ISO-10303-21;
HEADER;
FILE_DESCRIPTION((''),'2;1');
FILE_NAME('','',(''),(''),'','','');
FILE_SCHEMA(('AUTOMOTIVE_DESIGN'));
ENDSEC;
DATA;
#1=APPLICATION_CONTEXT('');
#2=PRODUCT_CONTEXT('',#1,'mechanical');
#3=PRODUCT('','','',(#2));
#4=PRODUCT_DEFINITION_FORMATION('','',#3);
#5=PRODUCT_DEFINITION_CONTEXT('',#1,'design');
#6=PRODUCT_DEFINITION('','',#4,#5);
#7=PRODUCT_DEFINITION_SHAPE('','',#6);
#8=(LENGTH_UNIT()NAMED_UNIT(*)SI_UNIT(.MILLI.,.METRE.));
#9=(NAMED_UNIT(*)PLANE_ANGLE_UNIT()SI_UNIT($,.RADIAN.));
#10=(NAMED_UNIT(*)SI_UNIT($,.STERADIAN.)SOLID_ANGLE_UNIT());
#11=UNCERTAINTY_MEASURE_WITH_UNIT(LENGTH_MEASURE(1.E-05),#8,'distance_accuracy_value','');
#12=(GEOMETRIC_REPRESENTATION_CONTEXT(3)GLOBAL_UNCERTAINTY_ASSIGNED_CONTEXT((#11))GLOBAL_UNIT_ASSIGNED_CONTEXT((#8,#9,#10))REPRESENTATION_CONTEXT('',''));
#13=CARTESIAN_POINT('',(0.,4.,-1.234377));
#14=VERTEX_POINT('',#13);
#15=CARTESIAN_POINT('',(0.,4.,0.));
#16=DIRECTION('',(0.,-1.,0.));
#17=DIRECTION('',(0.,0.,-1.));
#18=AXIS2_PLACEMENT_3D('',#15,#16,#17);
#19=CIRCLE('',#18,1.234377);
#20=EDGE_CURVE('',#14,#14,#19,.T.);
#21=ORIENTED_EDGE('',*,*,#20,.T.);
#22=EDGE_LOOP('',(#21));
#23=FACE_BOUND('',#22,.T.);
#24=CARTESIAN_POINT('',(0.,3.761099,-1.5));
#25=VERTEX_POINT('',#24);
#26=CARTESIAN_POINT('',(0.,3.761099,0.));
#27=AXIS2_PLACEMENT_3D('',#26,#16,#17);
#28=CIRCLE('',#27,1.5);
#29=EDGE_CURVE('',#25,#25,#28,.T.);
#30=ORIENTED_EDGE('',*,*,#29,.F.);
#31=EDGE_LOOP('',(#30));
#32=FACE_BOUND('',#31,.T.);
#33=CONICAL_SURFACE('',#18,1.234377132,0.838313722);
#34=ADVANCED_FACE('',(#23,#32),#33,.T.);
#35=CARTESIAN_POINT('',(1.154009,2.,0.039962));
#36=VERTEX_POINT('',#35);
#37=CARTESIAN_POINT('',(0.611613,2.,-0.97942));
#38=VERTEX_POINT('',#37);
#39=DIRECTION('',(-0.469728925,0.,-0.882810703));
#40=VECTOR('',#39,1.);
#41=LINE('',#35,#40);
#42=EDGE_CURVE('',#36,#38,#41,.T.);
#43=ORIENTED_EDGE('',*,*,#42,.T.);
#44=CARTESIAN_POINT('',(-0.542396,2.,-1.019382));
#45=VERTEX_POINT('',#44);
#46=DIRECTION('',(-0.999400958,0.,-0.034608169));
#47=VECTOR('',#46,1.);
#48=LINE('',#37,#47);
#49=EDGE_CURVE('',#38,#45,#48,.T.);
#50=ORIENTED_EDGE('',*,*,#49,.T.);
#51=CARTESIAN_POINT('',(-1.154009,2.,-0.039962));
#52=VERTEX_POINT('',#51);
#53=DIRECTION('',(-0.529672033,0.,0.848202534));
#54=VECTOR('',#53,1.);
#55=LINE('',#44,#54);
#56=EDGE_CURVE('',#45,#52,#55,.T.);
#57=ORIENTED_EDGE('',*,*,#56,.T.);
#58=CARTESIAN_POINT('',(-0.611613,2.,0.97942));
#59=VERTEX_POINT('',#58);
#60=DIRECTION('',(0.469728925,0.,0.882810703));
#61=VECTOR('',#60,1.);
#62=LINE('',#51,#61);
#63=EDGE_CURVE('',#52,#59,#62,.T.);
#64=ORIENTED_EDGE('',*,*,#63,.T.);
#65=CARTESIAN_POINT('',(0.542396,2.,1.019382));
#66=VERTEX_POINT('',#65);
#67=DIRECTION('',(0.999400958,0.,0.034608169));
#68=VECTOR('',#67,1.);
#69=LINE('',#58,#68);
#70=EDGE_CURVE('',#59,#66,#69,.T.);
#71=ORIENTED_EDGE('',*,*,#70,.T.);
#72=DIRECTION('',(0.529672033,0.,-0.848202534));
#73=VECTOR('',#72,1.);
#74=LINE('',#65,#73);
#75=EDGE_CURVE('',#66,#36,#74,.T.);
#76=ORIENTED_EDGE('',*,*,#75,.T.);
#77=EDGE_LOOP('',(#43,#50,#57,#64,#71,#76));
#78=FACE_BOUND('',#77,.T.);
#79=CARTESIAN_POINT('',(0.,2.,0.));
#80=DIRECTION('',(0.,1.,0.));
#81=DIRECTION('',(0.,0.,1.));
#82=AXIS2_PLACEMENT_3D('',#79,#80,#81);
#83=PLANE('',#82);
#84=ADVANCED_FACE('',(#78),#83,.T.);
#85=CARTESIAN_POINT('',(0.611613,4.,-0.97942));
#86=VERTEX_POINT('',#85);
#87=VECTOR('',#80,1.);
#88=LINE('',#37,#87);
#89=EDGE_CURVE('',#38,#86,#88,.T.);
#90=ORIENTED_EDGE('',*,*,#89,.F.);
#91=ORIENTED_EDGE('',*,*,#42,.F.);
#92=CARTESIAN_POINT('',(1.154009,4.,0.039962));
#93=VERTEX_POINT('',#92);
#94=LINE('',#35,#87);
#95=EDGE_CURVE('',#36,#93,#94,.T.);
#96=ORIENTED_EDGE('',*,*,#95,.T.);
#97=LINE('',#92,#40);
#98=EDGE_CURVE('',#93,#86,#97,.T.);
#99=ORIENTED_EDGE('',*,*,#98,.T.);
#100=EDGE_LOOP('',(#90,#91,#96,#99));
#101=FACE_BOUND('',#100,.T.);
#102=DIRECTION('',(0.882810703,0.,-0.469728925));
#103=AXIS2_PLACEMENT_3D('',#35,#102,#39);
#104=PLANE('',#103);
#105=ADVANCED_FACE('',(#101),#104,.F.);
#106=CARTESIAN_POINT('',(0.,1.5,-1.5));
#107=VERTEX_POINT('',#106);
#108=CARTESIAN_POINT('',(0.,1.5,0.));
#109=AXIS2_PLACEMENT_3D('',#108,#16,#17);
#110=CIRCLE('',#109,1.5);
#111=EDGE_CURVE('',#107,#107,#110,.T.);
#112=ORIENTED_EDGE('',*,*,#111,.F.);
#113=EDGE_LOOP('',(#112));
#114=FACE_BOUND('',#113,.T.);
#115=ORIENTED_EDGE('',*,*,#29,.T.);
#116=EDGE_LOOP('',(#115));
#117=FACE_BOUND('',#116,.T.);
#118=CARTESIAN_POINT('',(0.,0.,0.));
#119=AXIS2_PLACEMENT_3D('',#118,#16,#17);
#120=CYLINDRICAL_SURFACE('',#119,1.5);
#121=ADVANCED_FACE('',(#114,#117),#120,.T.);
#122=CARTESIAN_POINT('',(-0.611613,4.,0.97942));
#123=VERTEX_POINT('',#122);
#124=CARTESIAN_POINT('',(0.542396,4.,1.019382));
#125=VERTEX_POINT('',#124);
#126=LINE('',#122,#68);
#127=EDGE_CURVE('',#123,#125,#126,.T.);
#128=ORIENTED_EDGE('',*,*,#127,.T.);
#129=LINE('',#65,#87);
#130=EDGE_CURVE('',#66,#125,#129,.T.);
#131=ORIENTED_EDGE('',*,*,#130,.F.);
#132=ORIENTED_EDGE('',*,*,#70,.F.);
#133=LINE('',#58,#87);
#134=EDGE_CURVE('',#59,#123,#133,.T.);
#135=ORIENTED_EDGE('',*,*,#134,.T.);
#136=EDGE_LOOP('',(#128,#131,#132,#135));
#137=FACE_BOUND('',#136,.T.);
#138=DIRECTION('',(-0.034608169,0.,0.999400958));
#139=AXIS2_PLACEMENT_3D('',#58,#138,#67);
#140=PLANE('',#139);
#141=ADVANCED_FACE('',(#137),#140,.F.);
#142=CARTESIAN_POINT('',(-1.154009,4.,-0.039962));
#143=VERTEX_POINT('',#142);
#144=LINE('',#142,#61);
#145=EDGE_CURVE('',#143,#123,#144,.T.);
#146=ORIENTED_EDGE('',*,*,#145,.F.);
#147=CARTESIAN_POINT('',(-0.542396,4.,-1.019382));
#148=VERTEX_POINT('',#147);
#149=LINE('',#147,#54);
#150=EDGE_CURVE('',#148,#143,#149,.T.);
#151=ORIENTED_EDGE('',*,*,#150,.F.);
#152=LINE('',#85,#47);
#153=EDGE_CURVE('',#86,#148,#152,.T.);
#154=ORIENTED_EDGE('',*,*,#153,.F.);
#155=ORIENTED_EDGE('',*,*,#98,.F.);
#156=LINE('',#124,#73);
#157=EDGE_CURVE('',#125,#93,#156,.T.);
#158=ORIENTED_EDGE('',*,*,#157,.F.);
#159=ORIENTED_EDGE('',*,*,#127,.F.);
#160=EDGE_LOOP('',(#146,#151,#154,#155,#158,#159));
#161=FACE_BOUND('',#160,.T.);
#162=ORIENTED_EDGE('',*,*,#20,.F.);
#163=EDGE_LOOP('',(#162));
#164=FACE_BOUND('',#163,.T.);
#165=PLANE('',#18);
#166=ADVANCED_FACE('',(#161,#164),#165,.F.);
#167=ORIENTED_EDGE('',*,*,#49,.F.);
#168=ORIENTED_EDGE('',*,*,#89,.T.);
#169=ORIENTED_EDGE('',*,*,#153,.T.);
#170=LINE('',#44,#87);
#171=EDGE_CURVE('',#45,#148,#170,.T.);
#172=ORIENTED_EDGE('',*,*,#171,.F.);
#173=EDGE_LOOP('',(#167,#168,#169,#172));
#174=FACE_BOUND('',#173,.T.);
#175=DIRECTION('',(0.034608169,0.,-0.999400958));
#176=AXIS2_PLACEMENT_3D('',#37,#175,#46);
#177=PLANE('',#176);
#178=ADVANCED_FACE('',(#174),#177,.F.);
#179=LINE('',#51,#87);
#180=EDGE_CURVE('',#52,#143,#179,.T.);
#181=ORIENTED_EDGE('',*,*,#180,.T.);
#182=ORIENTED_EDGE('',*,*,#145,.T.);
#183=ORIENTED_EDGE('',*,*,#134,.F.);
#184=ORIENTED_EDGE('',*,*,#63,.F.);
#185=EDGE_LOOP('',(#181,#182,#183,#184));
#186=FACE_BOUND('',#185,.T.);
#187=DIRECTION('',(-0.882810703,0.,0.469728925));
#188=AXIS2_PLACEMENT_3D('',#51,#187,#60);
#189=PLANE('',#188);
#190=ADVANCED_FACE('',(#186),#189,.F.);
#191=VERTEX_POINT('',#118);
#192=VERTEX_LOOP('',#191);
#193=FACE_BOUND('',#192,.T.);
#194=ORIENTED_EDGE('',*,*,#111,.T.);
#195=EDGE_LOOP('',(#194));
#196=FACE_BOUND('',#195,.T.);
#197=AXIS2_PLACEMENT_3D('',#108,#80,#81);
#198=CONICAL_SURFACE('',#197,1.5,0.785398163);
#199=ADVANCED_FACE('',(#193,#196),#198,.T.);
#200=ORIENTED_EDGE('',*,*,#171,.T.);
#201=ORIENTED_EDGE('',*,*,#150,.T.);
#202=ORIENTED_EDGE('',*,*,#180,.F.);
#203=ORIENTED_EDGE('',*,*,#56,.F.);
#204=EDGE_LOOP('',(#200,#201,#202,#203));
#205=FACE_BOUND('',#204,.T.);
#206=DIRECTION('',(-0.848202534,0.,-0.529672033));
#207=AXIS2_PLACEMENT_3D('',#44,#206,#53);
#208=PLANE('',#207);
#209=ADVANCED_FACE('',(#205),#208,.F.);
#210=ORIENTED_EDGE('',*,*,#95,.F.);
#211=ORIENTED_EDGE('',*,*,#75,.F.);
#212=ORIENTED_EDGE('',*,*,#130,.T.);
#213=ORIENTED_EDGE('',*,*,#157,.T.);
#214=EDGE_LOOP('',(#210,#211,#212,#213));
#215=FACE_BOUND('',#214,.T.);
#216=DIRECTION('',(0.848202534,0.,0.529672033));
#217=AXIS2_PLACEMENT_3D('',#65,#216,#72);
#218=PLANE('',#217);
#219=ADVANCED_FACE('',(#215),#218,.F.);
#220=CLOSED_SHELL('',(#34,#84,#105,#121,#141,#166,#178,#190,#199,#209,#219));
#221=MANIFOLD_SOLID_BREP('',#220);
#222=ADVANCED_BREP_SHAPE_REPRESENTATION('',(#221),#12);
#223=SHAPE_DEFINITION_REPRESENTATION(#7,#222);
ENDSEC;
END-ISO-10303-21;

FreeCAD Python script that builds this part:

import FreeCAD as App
import Part
import Sketcher
Q = App.Units.Quantity


def add_polygon(sketch, points):
    """Adds a closed chain of lines whose ends are joined by coincident constraints."""
    first, n = sketch.GeometryCount, len(points)
    for a, b in zip(points, points[1:] + points[:1]):
        sketch.addGeometry(Part.LineSegment(App.Vector(*a, 0), App.Vector(*b, 0)), False)
    for i in range(n):
        sketch.addConstraint(Sketcher.Constraint("Coincident", first + i, 2, first + (i + 1) % n, 1))

doc = App.newDocument("Part")
body = doc.addObject("PartDesign::Body", "Body")

sketch1 = doc.addObject("Sketcher::SketchObject", "Sketch")
body.addObject(sketch1)
sketch1.AttachmentSupport = (doc.XY_Plane, [""])
sketch1.MapMode = "FlatFace"
add_polygon(sketch1, [(0, 0), (0, 4), (-1.234377, 4), (-1.5, 3.761099), (-1.5, 1.5)])
sketch1.addConstraint(Sketcher.Constraint("Vertical", 0))
sketch1.addConstraint(Sketcher.Constraint("Horizontal", 1))
sketch1.addConstraint(Sketcher.Constraint("Vertical", 3))
sketch1.addConstraint(Sketcher.Constraint("Coincident", 4, 2, -1, 1))
sketch1.addConstraint(Sketcher.Constraint("DistanceY", 0, 1, 0, 2, 4.0))
sketch1.addConstraint(Sketcher.Constraint("Angle", 4, Q("-45 deg")))
sketch1.addConstraint(Sketcher.Constraint("DistanceX", 2, 2, -1, 1, 1.5))
sketch1.addConstraint(Sketcher.Constraint("DistanceY", 3, 2, 3, 1, 2.261099))
sketch1.addConstraint(Sketcher.Constraint("DistanceX", 1, 2, 1, 1, 1.234377))
revolution = doc.addObject("PartDesign::Revolution", "Revolution")
body.addObject(revolution)
revolution.Profile = sketch1
revolution.ReferenceAxis = (sketch1, ["V_Axis"])
revolution.Angle = 360

sketch2 = doc.addObject("Sketcher::SketchObject", "Sketch001")
body.addObject(sketch2)
sketch2.AttachmentSupport = (doc.XZ_Plane, [""])
sketch2.MapMode = "FlatFace"
sketch2.AttachmentOffset = App.Placement(App.Vector(0, 0, -4), App.Rotation())
add_polygon(sketch2, [(-0.611613, 0.97942), (0.542396, 1.019382), (1.154009, 0.039962), (0.611613, -0.97942), (-0.542396, -1.019382), (-1.154009, -0.039962)])
sketch2.addConstraint(Sketcher.Constraint("Symmetric", 0, 2, 3, 2, -1, 1))
sketch2.addConstraint(Sketcher.Constraint("Symmetric", 1, 2, 4, 2, -1, 1))
sketch2.addConstraint(Sketcher.Constraint("Symmetric", 2, 2, 5, 2, -1, 1))
sketch2.addConstraint(Sketcher.Constraint("Equal", 0, 1))
sketch2.addConstraint(Sketcher.Constraint("Equal", 1, 2))
sketch2.addConstraint(Sketcher.Constraint("Distance", 0, 1.154701))
sketch2.addConstraint(Sketcher.Constraint("DistanceY", 2, 2, 0, 2, 1.998802))
sketch2.addConstraint(Sketcher.Constraint("DistanceY", -1, 1, 0, 2, 1.019382))
sketch2.addConstraint(Sketcher.Constraint("DistanceX", -1, 1, 1, 2, 1.154009))
pocket1 = doc.addObject("PartDesign::Pocket", "Pocket")
body.addObject(pocket1)
pocket1.Profile = sketch2
pocket1.Length = 2
pocket1.Reversed = True

doc.recompute()
